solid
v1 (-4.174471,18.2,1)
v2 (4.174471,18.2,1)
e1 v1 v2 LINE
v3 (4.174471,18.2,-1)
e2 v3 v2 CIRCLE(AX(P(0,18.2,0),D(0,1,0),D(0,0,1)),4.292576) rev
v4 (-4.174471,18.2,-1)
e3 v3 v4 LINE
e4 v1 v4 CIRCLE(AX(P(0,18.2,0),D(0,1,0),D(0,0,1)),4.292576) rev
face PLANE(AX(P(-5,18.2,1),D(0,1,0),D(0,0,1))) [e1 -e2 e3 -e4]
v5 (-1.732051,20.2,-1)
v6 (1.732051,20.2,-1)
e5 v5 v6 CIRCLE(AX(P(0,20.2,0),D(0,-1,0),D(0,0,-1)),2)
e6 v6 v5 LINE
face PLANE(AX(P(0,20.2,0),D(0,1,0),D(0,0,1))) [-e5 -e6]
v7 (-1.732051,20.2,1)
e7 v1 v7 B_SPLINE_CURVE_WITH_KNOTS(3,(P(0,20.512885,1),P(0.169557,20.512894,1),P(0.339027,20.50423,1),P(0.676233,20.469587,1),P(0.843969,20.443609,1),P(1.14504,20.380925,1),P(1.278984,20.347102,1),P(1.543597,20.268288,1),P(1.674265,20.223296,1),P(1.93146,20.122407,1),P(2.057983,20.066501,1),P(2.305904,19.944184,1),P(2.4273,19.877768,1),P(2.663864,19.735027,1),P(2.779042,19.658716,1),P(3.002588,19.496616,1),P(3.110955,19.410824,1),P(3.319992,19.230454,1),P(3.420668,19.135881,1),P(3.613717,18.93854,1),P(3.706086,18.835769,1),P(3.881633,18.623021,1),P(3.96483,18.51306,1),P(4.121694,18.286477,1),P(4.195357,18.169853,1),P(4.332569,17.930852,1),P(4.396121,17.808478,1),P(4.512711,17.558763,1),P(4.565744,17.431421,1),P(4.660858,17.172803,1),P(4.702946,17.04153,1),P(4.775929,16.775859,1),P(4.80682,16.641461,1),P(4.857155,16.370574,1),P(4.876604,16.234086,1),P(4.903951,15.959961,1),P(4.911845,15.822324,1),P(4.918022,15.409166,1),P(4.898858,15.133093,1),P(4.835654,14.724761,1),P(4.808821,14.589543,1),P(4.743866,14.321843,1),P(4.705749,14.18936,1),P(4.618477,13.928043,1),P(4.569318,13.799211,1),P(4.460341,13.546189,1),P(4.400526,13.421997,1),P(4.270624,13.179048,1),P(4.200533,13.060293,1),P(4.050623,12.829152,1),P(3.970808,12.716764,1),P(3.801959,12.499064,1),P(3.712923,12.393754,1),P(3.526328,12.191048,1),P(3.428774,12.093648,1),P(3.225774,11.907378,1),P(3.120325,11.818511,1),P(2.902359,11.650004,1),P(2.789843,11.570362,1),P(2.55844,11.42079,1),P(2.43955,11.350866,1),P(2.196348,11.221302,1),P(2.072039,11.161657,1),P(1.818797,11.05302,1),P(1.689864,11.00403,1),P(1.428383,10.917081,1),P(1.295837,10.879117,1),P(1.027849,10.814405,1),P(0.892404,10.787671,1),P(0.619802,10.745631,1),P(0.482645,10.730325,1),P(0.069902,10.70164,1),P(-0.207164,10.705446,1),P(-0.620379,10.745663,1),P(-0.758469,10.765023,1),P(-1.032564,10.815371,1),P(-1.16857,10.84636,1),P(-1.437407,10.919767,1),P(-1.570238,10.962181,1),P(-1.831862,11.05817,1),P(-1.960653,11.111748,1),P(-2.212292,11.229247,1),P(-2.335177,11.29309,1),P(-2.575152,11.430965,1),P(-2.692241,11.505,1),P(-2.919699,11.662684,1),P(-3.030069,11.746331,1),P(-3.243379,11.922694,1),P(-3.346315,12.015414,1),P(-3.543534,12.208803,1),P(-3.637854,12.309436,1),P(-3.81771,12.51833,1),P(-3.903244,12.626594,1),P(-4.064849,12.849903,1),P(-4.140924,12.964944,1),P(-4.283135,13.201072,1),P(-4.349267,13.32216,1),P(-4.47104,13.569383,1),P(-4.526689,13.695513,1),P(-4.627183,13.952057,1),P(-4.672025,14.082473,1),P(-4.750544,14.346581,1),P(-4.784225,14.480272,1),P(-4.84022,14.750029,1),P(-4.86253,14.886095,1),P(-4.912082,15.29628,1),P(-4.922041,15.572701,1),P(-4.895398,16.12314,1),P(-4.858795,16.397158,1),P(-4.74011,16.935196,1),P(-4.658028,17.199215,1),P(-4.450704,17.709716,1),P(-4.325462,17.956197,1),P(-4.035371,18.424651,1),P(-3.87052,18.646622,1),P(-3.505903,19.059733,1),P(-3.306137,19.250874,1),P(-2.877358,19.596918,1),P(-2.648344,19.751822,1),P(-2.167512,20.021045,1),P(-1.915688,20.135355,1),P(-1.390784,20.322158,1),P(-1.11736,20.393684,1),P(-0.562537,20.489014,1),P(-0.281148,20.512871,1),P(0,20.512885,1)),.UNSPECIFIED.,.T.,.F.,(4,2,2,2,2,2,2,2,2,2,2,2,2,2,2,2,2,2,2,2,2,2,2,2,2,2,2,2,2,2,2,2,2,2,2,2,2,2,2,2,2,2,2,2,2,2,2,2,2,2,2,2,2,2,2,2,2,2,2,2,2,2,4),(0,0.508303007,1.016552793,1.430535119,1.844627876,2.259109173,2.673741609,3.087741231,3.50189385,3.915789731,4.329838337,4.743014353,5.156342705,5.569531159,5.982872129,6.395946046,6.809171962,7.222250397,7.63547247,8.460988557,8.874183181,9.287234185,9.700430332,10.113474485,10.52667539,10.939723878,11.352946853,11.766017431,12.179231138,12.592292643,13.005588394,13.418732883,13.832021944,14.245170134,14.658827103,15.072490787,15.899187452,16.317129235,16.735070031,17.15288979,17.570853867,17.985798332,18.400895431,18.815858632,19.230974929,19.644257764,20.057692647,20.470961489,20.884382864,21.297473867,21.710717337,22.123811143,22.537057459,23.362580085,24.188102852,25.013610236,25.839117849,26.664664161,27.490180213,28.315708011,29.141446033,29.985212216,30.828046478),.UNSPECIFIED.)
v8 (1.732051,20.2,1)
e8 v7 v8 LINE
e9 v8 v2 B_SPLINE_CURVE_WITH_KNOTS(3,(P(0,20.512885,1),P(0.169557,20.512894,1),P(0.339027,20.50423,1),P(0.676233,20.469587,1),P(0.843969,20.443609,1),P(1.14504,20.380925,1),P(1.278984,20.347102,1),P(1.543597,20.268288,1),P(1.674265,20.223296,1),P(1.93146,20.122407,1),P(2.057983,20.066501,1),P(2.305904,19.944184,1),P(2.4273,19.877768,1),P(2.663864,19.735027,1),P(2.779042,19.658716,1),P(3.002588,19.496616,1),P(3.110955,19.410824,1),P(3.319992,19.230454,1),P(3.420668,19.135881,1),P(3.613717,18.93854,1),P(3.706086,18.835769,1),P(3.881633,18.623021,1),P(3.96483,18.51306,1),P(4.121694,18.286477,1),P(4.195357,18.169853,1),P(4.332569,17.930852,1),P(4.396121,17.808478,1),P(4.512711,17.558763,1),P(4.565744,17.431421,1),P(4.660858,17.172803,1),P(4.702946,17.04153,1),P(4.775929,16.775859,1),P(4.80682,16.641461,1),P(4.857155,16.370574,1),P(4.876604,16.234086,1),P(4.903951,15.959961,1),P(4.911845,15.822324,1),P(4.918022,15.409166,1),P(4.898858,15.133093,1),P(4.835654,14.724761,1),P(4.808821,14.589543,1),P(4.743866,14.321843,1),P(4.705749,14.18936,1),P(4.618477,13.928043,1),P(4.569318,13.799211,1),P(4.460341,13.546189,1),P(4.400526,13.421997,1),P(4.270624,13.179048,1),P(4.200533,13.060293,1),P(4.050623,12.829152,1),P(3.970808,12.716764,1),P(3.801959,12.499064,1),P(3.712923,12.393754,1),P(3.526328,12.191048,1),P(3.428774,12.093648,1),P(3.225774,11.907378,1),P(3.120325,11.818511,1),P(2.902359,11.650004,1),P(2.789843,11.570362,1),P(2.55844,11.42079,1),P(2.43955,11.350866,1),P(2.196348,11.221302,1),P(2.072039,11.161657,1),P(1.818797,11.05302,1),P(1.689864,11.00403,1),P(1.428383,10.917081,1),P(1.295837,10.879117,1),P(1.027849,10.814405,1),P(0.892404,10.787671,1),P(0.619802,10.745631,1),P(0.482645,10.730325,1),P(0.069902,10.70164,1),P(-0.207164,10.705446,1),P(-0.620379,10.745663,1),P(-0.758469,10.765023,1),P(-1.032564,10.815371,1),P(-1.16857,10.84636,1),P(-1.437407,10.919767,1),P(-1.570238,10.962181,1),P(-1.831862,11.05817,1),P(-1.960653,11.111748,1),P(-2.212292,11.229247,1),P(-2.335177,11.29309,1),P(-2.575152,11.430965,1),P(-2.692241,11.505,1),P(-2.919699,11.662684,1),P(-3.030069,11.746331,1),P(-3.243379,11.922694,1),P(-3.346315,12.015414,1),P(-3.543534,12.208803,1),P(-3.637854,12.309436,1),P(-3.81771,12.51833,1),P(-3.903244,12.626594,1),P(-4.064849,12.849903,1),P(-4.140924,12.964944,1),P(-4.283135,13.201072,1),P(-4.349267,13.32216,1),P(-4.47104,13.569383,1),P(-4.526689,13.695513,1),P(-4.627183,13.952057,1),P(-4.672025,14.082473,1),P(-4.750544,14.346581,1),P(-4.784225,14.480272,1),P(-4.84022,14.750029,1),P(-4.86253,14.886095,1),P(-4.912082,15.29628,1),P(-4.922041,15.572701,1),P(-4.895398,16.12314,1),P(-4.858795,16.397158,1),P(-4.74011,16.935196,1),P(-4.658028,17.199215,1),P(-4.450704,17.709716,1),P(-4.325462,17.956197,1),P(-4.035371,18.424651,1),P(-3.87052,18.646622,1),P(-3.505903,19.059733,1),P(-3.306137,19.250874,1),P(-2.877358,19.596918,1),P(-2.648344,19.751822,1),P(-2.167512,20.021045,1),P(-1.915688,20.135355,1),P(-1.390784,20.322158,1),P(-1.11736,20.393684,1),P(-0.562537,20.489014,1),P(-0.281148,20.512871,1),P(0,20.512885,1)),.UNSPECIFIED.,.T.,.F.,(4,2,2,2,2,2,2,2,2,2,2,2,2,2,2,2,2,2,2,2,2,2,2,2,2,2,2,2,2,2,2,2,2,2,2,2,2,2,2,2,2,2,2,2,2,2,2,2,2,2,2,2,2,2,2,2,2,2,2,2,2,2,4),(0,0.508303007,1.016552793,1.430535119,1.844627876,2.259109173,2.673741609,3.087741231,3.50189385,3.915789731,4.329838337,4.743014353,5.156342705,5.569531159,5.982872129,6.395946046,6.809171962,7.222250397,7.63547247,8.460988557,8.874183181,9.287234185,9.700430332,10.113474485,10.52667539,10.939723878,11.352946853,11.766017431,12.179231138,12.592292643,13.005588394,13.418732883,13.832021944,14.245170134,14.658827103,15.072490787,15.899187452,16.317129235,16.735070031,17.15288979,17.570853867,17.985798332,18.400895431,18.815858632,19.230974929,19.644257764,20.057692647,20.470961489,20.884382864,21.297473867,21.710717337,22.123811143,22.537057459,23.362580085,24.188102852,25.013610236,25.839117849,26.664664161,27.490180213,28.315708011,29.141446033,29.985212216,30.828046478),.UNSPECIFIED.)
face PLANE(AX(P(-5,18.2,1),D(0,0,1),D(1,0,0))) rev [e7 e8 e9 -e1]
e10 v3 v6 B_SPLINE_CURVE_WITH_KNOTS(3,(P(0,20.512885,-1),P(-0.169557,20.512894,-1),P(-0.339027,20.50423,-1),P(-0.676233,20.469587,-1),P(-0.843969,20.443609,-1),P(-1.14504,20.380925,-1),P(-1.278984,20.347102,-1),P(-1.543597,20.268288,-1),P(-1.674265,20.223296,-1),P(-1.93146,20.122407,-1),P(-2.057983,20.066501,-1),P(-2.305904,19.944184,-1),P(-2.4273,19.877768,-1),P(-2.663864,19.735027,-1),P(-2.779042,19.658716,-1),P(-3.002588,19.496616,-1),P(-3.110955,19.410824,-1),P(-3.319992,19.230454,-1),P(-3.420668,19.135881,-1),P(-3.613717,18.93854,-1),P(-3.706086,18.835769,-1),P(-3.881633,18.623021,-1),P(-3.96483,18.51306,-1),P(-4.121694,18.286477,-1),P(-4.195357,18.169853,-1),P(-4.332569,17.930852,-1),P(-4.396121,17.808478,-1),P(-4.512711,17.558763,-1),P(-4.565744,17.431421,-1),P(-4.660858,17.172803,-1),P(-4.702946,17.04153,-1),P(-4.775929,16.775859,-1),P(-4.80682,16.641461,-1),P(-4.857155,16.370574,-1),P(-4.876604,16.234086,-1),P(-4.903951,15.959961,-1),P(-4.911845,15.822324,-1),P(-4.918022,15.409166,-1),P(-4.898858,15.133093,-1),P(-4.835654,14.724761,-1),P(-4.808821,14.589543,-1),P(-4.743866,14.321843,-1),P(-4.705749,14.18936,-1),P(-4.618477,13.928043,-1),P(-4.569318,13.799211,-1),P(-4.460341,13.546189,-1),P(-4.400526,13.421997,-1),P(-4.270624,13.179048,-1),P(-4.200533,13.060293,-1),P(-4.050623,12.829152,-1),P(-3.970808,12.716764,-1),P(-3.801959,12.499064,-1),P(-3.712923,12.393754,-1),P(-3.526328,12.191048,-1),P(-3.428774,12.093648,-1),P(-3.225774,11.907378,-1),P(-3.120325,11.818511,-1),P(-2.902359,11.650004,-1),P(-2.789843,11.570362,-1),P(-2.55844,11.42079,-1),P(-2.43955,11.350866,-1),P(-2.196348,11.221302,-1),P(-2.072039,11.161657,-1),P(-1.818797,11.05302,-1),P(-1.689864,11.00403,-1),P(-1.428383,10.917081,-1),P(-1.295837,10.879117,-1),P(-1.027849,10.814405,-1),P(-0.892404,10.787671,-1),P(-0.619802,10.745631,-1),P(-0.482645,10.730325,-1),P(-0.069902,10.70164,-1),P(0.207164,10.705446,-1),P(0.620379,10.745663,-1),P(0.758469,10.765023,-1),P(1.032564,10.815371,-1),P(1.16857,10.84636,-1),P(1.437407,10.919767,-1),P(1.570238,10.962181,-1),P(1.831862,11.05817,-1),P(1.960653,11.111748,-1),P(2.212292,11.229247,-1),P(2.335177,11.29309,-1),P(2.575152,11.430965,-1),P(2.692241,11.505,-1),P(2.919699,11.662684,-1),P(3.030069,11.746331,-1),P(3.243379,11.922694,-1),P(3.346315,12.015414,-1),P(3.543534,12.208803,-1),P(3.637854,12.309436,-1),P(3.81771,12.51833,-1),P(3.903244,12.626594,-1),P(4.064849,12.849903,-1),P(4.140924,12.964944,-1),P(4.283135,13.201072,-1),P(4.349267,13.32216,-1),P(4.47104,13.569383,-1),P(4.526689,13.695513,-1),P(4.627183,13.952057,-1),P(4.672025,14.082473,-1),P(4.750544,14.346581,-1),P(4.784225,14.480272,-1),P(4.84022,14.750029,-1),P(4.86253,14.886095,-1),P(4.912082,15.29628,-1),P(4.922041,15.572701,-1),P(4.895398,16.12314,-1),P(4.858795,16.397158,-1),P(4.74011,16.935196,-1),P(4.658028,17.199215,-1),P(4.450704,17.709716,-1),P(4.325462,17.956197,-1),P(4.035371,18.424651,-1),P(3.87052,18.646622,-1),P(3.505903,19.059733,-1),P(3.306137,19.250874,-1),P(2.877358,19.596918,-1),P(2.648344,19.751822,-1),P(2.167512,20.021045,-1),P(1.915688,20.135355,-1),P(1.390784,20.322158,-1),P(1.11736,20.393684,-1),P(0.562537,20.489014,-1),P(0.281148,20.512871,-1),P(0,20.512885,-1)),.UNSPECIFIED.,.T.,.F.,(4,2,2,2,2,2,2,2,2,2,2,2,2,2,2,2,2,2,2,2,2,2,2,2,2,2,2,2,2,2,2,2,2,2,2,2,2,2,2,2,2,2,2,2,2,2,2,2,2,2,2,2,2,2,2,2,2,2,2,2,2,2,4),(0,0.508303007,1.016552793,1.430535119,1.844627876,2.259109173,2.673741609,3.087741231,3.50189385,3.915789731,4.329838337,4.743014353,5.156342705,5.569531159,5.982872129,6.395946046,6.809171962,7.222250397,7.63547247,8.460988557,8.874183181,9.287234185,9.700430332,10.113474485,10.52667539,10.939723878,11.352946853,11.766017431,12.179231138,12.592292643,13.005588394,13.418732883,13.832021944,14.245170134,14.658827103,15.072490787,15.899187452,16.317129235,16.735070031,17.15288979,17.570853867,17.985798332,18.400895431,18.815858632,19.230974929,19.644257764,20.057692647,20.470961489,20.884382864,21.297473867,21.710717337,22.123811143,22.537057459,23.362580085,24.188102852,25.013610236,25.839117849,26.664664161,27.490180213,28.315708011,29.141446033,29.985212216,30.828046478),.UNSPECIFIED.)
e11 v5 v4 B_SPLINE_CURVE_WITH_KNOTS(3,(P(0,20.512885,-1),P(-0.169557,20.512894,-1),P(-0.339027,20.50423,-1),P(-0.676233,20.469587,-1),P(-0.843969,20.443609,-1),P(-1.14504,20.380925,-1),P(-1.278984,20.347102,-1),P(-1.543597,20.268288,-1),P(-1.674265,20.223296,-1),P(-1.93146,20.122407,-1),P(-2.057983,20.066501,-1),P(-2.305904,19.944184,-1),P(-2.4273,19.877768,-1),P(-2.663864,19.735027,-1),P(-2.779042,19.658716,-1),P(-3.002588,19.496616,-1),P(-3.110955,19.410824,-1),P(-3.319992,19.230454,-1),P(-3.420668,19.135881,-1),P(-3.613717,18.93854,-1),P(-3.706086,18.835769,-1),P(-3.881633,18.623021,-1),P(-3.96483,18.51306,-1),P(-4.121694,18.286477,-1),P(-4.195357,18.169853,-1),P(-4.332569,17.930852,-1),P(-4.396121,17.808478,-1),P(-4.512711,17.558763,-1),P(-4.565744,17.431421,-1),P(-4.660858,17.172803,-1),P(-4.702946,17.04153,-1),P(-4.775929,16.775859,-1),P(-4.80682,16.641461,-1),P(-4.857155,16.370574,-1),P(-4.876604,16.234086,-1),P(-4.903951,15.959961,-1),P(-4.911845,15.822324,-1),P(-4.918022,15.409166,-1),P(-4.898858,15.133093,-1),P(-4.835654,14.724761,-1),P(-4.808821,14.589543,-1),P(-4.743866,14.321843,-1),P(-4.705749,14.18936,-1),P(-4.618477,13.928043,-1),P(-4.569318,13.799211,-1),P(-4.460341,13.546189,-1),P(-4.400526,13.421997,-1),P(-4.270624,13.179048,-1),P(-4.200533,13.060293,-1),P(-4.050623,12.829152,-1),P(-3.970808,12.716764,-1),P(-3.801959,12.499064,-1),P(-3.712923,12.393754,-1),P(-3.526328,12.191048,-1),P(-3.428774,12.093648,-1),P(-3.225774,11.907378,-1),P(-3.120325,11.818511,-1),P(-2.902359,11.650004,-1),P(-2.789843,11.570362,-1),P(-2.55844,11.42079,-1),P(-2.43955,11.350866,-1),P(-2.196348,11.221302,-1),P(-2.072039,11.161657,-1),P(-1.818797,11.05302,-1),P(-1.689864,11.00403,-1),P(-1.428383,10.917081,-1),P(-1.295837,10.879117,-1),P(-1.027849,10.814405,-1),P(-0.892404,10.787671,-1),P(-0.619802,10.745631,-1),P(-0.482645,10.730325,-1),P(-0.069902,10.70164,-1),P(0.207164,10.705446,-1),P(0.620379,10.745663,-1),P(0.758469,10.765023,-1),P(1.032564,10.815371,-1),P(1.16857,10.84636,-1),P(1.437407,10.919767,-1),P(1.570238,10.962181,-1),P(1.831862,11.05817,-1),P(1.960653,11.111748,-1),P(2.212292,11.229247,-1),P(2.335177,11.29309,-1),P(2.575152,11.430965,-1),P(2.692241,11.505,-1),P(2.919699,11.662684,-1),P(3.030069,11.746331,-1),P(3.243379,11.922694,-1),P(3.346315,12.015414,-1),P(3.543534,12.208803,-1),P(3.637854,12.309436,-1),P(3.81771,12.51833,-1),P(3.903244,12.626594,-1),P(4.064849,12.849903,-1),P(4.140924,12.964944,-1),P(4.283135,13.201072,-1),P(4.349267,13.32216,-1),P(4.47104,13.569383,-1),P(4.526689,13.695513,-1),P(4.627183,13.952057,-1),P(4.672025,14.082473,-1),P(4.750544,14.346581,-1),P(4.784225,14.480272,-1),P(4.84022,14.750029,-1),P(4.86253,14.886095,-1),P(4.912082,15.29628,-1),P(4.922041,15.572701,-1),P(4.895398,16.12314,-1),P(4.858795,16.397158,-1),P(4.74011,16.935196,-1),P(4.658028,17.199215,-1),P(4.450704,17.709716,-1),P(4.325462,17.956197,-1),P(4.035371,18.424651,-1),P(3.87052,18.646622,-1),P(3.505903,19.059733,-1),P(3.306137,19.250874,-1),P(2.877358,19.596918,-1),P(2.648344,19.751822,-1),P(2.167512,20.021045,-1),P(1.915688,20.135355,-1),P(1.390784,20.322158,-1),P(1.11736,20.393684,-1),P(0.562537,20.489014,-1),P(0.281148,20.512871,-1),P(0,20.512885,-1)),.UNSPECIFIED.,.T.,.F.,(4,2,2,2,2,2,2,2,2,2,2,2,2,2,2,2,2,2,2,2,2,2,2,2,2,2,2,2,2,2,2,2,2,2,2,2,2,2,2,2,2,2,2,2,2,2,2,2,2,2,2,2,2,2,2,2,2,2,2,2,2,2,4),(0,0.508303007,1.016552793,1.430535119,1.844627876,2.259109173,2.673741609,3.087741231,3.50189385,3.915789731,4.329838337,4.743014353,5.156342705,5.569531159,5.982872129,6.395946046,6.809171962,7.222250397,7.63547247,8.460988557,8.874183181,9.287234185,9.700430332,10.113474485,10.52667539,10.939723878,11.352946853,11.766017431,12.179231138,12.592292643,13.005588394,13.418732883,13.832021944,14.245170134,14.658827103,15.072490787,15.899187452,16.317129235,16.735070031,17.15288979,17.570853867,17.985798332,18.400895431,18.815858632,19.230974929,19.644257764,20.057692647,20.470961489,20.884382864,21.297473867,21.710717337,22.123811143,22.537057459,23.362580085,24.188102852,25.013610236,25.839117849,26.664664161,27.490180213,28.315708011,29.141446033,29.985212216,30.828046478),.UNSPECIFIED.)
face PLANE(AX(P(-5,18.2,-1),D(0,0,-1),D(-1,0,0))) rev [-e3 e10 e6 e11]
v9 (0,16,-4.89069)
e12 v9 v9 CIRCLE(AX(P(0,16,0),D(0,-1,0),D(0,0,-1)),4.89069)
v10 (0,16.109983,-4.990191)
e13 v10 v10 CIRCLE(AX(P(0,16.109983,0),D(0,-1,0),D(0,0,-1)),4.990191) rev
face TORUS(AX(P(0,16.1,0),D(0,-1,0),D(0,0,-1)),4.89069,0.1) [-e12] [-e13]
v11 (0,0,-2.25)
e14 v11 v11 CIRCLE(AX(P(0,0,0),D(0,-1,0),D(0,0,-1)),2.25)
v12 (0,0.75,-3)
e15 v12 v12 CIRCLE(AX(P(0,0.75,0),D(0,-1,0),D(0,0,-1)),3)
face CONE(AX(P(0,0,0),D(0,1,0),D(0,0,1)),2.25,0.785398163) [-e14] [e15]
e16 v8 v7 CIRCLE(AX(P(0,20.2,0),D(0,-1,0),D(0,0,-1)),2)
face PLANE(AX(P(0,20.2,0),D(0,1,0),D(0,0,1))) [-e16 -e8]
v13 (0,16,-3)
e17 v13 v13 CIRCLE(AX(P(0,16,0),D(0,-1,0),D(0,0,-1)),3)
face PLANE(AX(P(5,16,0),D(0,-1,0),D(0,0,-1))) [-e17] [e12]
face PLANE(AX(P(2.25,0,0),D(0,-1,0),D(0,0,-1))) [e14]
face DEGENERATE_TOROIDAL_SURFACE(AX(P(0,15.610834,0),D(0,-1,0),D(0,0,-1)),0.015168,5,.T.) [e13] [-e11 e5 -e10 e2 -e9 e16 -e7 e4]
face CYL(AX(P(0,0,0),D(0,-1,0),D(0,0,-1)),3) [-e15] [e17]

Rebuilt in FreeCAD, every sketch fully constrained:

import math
import FreeCAD as App
import Part
import Sketcher
Q = App.Units.Quantity


def edges_at(feature, points):
    """Names of the edges that pass closest to the given points."""
    edges = feature.Shape.Edges
    near = lambda p: min(range(len(edges)), key=lambda i: edges[i].distToShape(Part.Vertex(*p))[0])
    return sorted({f"Edge{near(p) + 1}" for p in points})

doc = App.newDocument("Part")
body = doc.addObject("PartDesign::Body", "Body")

# Sketch on XY plane
sketch1 = body.newObject("Sketcher::SketchObject", "Sketch")
sketch1.AttachmentSupport = (doc.getObject("XY_Plane"), [""])
sketch1.MapMode = "FlatFace"
sketch1.addGeometry([
    Part.LineSegment(App.Vector(3, 16, 0), App.Vector(5, 16, 0)),  # 0
    Part.ArcOfCircle(Part.Circle(App.Vector(0, 15.6, 0), App.Vector(0, 0, 1), 5), math.radians(4), math.radians(67)),  # 1
    Part.LineSegment(App.Vector(2, 20.2, 0), App.Vector(0, 20.2, 0)),  # 2
    Part.LineSegment(App.Vector(0, 20.2, 0), App.Vector(0, 0, 0)),  # 3
    Part.LineSegment(App.Vector(0, 0, 0), App.Vector(2.2, 0, 0)),  # 4
    Part.LineSegment(App.Vector(2.2, 0, 0), App.Vector(3, 0.8, 0)),  # 5
    Part.LineSegment(App.Vector(3, 0.8, 0), App.Vector(3, 16, 0)),  # 6
], False)
sketch1.addConstraint([
    Sketcher.Constraint("Coincident", 0, 2, 1, 1),
    Sketcher.Constraint("Coincident", 1, 2, 2, 1),
    Sketcher.Constraint("Coincident", 2, 2, 3, 1),
    Sketcher.Constraint("Coincident", 3, 2, 4, 1),
    Sketcher.Constraint("Coincident", 4, 2, 5, 1),
    Sketcher.Constraint("Coincident", 5, 2, 6, 1),
    Sketcher.Constraint("Coincident", 6, 2, 0, 1),
    Sketcher.Constraint("Horizontal", 0),
    Sketcher.Constraint("Horizontal", 2),
    Sketcher.Constraint("Vertical", 3),
    Sketcher.Constraint("Horizontal", 4),
    Sketcher.Constraint("Vertical", 6),
    Sketcher.Constraint("Coincident", 3, 2, -1, 1),
    Sketcher.Constraint("Equal", 0, 2),
    Sketcher.Constraint("Radius", 1, Q("5 mm")),
    Sketcher.Constraint("DistanceX", 0, 1, 0, 2, Q("2 mm")),
    Sketcher.Constraint("Angle", 5, Q("45 deg")),
    Sketcher.Constraint("DistanceY", 3, 2, 3, 1, Q("20.2 mm")),
    Sketcher.Constraint("DistanceX", -1, 1, 0, 2, Q("5 mm")),
    Sketcher.Constraint("DistanceY", -1, 1, 0, 2, Q("16 mm")),
    Sketcher.Constraint("DistanceX", 4, 1, 4, 2, Q("2.25 mm")),
])
revolution = body.newObject("PartDesign::Revolution", "Revolution")
revolution.Profile = sketch1
revolution.ReferenceAxis = (sketch1, ["V_Axis"])
revolution.Angle = 360
doc.recompute()

fillet = body.newObject("PartDesign::Fillet", "Fillet")
fillet.Base = (revolution, edges_at(revolution, [(0, 16, 5)]))
fillet.Radius = 0.1

# Sketch on XZ plane
sketch2 = body.newObject("Sketcher::SketchObject", "Sketch001")
sketch2.AttachmentSupport = (doc.getObject("XZ_Plane"), [""])
sketch2.MapMode = "FlatFace"
sketch2.AttachmentOffset = App.Placement(App.Vector(0, 0, -20.2), App.Rotation())
sketch2.addGeometry([
    Part.LineSegment(App.Vector(5, 1, 0), App.Vector(5, -1, 0)),
    Part.LineSegment(App.Vector(5, -1, 0), App.Vector(-5, -1, 0)),
    Part.LineSegment(App.Vector(-5, -1, 0), App.Vector(-5, 1, 0)),
    Part.LineSegment(App.Vector(-5, 1, 0), App.Vector(5, 1, 0)),
], False)
sketch2.addConstraint([
    Sketcher.Constraint("Coincident", 0, 2, 1, 1),
    Sketcher.Constraint("Coincident", 1, 2, 2, 1),
    Sketcher.Constraint("Coincident", 2, 2, 3, 1),
    Sketcher.Constraint("Coincident", 3, 2, 0, 1),
    Sketcher.Constraint("Vertical", 0),
    Sketcher.Constraint("Horizontal", 1),
    Sketcher.Constraint("Vertical", 2),
    Sketcher.Constraint("Horizontal", 3),
    Sketcher.Constraint("Symmetric", 0, 2, 2, 2, -1, 1),
    Sketcher.Constraint("DistanceX", 1, 2, 1, 1, Q("10 mm")),
    Sketcher.Constraint("DistanceY", 0, 2, 0, 1, Q("2 mm")),
])
pocket1 = body.newObject("PartDesign::Pocket", "Pocket")
pocket1.Profile = sketch2
pocket1.Length = 2
pocket1.Reversed = True

doc.recompute()
